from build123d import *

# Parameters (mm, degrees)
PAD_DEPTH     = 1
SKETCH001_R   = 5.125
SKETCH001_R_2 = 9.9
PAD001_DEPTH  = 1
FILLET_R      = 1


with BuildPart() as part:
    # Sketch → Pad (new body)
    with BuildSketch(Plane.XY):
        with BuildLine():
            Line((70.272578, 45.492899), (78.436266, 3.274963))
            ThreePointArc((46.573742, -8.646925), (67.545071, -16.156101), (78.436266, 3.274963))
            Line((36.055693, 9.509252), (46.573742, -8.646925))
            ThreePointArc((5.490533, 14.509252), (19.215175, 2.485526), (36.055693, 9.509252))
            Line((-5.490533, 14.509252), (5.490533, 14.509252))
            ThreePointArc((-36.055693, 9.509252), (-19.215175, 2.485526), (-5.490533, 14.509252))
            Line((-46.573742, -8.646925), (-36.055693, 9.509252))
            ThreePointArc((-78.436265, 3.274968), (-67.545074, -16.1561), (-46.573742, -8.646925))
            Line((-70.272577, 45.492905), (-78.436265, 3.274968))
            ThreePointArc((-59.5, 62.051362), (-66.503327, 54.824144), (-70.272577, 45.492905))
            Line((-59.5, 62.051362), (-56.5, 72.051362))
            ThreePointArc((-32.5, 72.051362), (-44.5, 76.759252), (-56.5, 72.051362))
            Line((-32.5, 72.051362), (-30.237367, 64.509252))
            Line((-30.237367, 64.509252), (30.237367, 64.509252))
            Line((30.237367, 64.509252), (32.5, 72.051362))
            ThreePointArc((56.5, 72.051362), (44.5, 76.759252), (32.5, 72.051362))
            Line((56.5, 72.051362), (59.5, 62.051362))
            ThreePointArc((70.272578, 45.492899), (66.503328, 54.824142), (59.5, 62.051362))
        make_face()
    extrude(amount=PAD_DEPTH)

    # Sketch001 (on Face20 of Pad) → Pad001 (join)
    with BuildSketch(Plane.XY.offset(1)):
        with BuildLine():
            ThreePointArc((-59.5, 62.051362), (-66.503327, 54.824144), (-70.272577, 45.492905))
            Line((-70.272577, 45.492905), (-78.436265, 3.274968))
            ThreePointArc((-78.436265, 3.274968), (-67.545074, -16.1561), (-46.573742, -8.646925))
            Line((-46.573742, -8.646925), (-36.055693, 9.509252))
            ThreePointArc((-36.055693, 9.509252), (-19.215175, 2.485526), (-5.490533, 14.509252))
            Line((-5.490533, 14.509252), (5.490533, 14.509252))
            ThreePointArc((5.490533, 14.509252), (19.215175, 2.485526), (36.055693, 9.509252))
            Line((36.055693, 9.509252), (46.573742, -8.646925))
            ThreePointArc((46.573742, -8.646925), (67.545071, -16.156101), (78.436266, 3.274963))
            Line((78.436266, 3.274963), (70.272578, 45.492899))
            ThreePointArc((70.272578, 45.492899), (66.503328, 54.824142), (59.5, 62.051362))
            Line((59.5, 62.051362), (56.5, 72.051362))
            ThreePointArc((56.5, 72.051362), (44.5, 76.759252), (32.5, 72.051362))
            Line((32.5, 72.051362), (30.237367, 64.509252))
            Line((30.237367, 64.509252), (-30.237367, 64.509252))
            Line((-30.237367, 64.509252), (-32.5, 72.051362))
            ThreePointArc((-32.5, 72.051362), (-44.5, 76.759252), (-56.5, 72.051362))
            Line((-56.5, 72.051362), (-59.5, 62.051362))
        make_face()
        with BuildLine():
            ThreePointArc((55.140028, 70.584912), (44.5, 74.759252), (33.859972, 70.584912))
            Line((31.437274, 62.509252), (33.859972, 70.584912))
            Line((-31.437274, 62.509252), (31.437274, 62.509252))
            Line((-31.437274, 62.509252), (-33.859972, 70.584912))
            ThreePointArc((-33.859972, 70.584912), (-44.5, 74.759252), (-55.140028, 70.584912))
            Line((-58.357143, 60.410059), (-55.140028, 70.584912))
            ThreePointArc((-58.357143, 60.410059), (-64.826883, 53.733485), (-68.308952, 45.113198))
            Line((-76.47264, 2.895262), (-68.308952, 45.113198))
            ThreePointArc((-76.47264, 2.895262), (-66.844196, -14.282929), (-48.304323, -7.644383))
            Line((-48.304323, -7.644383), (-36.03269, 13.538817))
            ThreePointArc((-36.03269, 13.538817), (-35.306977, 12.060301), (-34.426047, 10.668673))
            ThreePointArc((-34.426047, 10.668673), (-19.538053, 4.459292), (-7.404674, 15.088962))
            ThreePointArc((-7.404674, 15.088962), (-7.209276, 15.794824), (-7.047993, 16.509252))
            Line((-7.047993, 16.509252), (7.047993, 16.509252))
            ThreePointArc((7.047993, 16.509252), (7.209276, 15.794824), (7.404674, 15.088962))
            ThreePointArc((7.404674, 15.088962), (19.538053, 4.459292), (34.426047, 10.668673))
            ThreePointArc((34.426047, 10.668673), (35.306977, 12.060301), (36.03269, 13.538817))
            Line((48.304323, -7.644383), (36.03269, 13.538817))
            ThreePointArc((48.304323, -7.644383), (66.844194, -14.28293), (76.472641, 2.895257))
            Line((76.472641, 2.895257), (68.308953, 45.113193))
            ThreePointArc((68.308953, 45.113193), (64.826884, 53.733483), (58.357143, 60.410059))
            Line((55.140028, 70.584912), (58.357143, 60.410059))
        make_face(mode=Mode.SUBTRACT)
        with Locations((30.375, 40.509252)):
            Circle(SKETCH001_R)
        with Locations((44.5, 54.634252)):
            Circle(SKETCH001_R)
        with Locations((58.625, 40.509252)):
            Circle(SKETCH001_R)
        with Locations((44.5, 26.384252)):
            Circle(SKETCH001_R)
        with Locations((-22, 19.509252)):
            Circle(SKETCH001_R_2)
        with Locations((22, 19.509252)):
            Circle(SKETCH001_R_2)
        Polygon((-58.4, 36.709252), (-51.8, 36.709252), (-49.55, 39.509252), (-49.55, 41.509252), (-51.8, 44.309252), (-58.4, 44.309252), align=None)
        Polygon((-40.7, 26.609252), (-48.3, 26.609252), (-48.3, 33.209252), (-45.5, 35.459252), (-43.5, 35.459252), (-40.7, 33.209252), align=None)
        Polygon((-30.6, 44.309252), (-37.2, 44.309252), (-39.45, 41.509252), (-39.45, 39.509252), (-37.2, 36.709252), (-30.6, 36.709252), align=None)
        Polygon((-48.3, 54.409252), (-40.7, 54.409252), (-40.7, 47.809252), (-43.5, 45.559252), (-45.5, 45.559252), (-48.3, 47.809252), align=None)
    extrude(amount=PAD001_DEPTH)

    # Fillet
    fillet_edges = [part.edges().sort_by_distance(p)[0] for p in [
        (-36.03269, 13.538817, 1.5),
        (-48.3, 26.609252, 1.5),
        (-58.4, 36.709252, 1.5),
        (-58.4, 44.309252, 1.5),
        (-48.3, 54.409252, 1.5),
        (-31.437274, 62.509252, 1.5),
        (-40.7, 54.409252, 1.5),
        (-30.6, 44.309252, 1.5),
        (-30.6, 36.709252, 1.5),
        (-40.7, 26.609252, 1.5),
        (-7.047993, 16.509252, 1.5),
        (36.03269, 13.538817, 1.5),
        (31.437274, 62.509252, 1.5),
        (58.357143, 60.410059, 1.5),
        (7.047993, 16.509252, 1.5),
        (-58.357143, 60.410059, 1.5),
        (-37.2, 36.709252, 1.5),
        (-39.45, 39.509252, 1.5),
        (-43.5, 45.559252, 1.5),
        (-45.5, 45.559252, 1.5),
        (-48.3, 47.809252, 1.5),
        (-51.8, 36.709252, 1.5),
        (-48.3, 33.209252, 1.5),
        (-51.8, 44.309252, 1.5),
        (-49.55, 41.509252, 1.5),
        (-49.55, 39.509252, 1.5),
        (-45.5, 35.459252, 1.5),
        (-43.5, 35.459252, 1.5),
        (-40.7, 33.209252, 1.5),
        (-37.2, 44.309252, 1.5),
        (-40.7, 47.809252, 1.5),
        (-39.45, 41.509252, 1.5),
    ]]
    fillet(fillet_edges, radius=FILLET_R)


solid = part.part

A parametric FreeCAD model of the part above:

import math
import FreeCAD as App
import Part
import Sketcher
Q = App.Units.Quantity


def edges_at(feature, points):
    """Names of the edges that pass closest to the given points."""
    edges = feature.Shape.Edges
    near = lambda p: min(range(len(edges)), key=lambda i: edges[i].distToShape(Part.Vertex(*p))[0])
    return sorted({f"Edge{near(p) + 1}" for p in points})

doc = App.newDocument("Part")
body = doc.addObject("PartDesign::Body", "Body")

sketch1 = body.newObject("Sketcher::SketchObject", "Sketch")
sketch1.AttachmentSupport = (doc.getObject("XY_Plane"), [""])
sketch1.MapMode = "FlatFace"
sketch1.addGeometry([
    Part.LineSegment(App.Vector(78.436266, 3.274963, 0), App.Vector(70.272578, 45.492899, 0)),
    Part.ArcOfCircle(Part.Circle(App.Vector(44.500002, 40.509253, 0), App.Vector(0, 0, 1), 26.249998), math.radians(10.944217), math.radians(55.150098)),
    Part.LineSegment(App.Vector(59.5, 62.051362, 0), App.Vector(56.5, 72.051362, 0)),
    Part.ArcOfCircle(Part.Circle(App.Vector(44.5, 59.111832, 0), App.Vector(0, 0, 1), 17.64742), math.radians(47.157446), math.radians(132.842554)),
    Part.LineSegment(App.Vector(32.5, 72.051362, 0), App.Vector(30.237367, 64.509252, 0)),
    Part.LineSegment(App.Vector(30.237367, 64.509252, 0), App.Vector(-30.237367, 64.509252, 0)),
    Part.LineSegment(App.Vector(-30.237367, 64.509252, 0), App.Vector(-32.5, 72.051362, 0)),
    Part.ArcOfCircle(Part.Circle(App.Vector(-44.5, 59.111832, 0), App.Vector(0, 0, 1), 17.64742), math.radians(47.157446), math.radians(132.842554)),
    Part.LineSegment(App.Vector(-56.5, 72.051362, 0), App.Vector(-59.5, 62.051362, 0)),
    Part.ArcOfCircle(Part.Circle(App.Vector(-44.500004, 40.509254, 0), App.Vector(0, 0, 1), 26.249996), math.radians(124.849899), math.radians(169.055772)),
    Part.LineSegment(App.Vector(-70.272577, 45.492905, 0), App.Vector(-78.436265, 3.274968, 0)),
    Part.ArcOfCircle(Part.Circle(App.Vector(-61.5, 0, 0), App.Vector(0, 0, 1), 17.25), math.radians(169.055782), math.radians(329.915874)),
    Part.LineSegment(App.Vector(-46.573742, -8.646925, 0), App.Vector(-36.055693, 9.509252, 0)),
    Part.ArcOfCircle(Part.Circle(App.Vector(-22, 19.509252, 0), App.Vector(0, 0, 1), 17.25), math.radians(-144.569841), math.radians(-16.84928)),
    Part.LineSegment(App.Vector(-5.490533, 14.509252, 0), App.Vector(5.490533, 14.509252, 0)),
    Part.ArcOfCircle(Part.Circle(App.Vector(22, 19.509252, 0), App.Vector(0, 0, 1), 17.25), math.radians(-163.15072), math.radians(-35.430159)),
    Part.LineSegment(App.Vector(36.055693, 9.509252, 0), App.Vector(46.573742, -8.646925, 0)),
    Part.ArcOfCircle(Part.Circle(App.Vector(61.5, 0, 0), App.Vector(0, 0, 1), 17.25), math.radians(-149.915873), math.radians(10.944201)),
], False)
sketch1.addConstraint([
    Sketcher.Constraint("Coincident", 0, 2, 1, 1),
    Sketcher.Constraint("Coincident", 1, 2, 2, 1),
    Sketcher.Constraint("Coincident", 2, 2, 3, 1),
    Sketcher.Constraint("Coincident", 3, 2, 4, 1),
    Sketcher.Constraint("Coincident", 4, 2, 5, 1),
    Sketcher.Constraint("Coincident", 5, 2, 6, 1),
    Sketcher.Constraint("Coincident", 6, 2, 7, 1),
    Sketcher.Constraint("Coincident", 7, 2, 8, 1),
    Sketcher.Constraint("Coincident", 8, 2, 9, 1),
    Sketcher.Constraint("Coincident", 9, 2, 10, 1),
    Sketcher.Constraint("Coincident", 10, 2, 11, 1),
    Sketcher.Constraint("Coincident", 11, 2, 12, 1),
    Sketcher.Constraint("Coincident", 12, 2, 13, 1),
    Sketcher.Constraint("Coincident", 13, 2, 14, 1),
    Sketcher.Constraint("Coincident", 14, 2, 15, 1),
    Sketcher.Constraint("Coincident", 15, 2, 16, 1),
    Sketcher.Constraint("Coincident", 16, 2, 17, 1),
    Sketcher.Constraint("Coincident", 17, 2, 0, 1),
    Sketcher.Constraint("Horizontal", 5),
    Sketcher.Constraint("Horizontal", 14),
    Sketcher.Constraint("PointOnObject", 11, 3, -1),
    Sketcher.Constraint("PointOnObject", 17, 3, -1),
    Sketcher.Constraint("Radius", 11, Q("17.25 mm")),
    Sketcher.Constraint("Radius", 13, Q("17.25 mm")),
    Sketcher.Constraint("Radius", 15, Q("17.25 mm")),
    Sketcher.Constraint("Radius", 17, Q("17.25 mm")),
    Sketcher.Constraint("Distance", 0, Q("42.999999 mm")),
    Sketcher.Constraint("Distance", 10, Q("43 mm")),
    Sketcher.Constraint("DistanceX", 13, 3, -1, 1, Q("22 mm")),
    Sketcher.Constraint("DistanceX", -1, 1, 15, 3, Q("22 mm")),
    Sketcher.Constraint("DistanceX", 7, 3, 3, 3, Q("89 mm")),
    Sketcher.Constraint("DistanceX", 11, 3, 7, 3, Q("17 mm")),
    Sketcher.Constraint("DistanceY", 13, 3, 1, 3, Q("21.000001 mm")),
    Sketcher.Constraint("DistanceY", 15, 3, 1, 3, Q("21.000001 mm")),
    Sketcher.Constraint("DistanceX", 3, 3, 17, 3, Q("17 mm")),
    Sketcher.Constraint("DistanceX", 3, 3, 1, 2, Q("15 mm")),
    Sketcher.Constraint("DistanceX", 2, 2, 1, 2, Q("3 mm")),
    Sketcher.Constraint("DistanceY", 1, 2, 2, 2, Q("10 mm")),
    Sketcher.Constraint("DistanceX", 3, 2, 3, 3, Q("12 mm")),
    Sketcher.Constraint("DistanceY", 1, 3, 4, 2, Q("23.999999 mm")),
    Sketcher.Constraint("DistanceX", 7, 3, 6, 2, Q("12 mm")),
    Sketcher.Constraint("DistanceX", 7, 2, 7, 3, Q("12 mm")),
    Sketcher.Constraint("DistanceX", 8, 2, 7, 2, Q("3 mm")),
    Sketcher.Constraint("DistanceY", 8, 2, 7, 2, Q("10 mm")),
    Sketcher.Constraint("DistanceY", 12, 2, 13, 3, Q("10 mm")),
    Sketcher.Constraint("DistanceY", 13, 2, 13, 3, Q("5 mm")),
    Sketcher.Constraint("DistanceY", 15, 2, 15, 3, Q("10 mm")),
    Sketcher.Constraint("DistanceX", -1, 1, 3, 3, Q("44.5 mm")),
    Sketcher.Constraint("Radius", 3, Q("17.64742 mm")),
    Sketcher.Constraint("Radius", 7, Q("17.64742 mm")),
    Sketcher.Constraint("Radius", 1, Q("26.249998 mm")),
    Sketcher.Constraint("Radius", 9, Q("26.249996 mm")),
    Sketcher.Constraint("DistanceY", -1, 1, 0, 2, Q("45.492899 mm")),
    Sketcher.Constraint("DistanceX", 5, 2, 5, 1, Q("60.474734 mm")),
    Sketcher.Constraint("DistanceY", -1, 1, 3, 3, Q("59.111832 mm")),
    Sketcher.Constraint("DistanceY", -1, 1, 7, 3, Q("59.111832 mm")),
    Sketcher.Constraint("DistanceX", 11, 2, -1, 1, Q("46.573742 mm")),
    Sketcher.Constraint("DistanceY", 1, 3, 3, 3, Q("18.602578 mm")),
    Sketcher.Constraint("DistanceY", 9, 3, 9, 2, Q("4.983651 mm")),
    Sketcher.Constraint("DistanceX", 9, 2, 5, 2, Q("40.03521 mm")),
    Sketcher.Constraint("DistanceX", 10, 2, 9, 2, Q("8.163688 mm")),
    Sketcher.Constraint("DistanceX", 15, 2, 16, 2, Q("10.518049 mm")),
])
pad1 = body.newObject("PartDesign::Pad", "Pad")
pad1.Profile = sketch1
pad1.Length = 1

sketch2 = body.newObject("Sketcher::SketchObject", "Sketch001")
sketch2.AttachmentSupport = (doc.getObject("XY_Plane"), [""])
sketch2.MapMode = "FlatFace"
sketch2.AttachmentOffset = App.Placement(App.Vector(0, 0, 1), App.Rotation())
sketch2.addGeometry([
    Part.ArcOfCircle(Part.Circle(App.Vector(-44.500004, 40.509254, 0), App.Vector(0, 0, 1), 26.249996), math.radians(124.849899), math.radians(169.055772)),
    Part.LineSegment(App.Vector(-70.272577, 45.492905, 0), App.Vector(-78.436265, 3.274968, 0)),
    Part.ArcOfCircle(Part.Circle(App.Vector(-61.5, 0, 0), App.Vector(0, 0, 1), 17.25), math.radians(169.055782), math.radians(329.915874)),
    Part.LineSegment(App.Vector(-46.573742, -8.646925, 0), App.Vector(-36.055693, 9.509252, 0)),
    Part.ArcOfCircle(Part.Circle(App.Vector(-22, 19.509252, 0), App.Vector(0, 0, 1), 17.25), math.radians(-144.569841), math.radians(-16.84928)),
    Part.LineSegment(App.Vector(-5.490533, 14.509252, 0), App.Vector(5.490533, 14.509252, 0)),
    Part.ArcOfCircle(Part.Circle(App.Vector(22, 19.509252, 0), App.Vector(0, 0, 1), 17.25), math.radians(-163.15072), math.radians(-35.430159)),
    Part.LineSegment(App.Vector(36.055693, 9.509252, 0), App.Vector(46.573742, -8.646925, 0)),
    Part.ArcOfCircle(Part.Circle(App.Vector(61.5, 0, 0), App.Vector(0, 0, 1), 17.25), math.radians(-149.915873), math.radians(10.944201)),
    Part.LineSegment(App.Vector(78.436266, 3.274963, 0), App.Vector(70.272578, 45.492899, 0)),
    Part.ArcOfCircle(Part.Circle(App.Vector(44.500002, 40.509253, 0), App.Vector(0, 0, 1), 26.249998), math.radians(10.944217), math.radians(55.150098)),
    Part.LineSegment(App.Vector(59.5, 62.051362, 0), App.Vector(56.5, 72.051362, 0)),
    Part.ArcOfCircle(Part.Circle(App.Vector(44.5, 59.111832, 0), App.Vector(0, 0, 1), 17.64742), math.radians(47.157446), math.radians(132.842554)),
    Part.LineSegment(App.Vector(32.5, 72.051362, 0), App.Vector(30.237367, 64.509252, 0)),
    Part.LineSegment(App.Vector(30.237367, 64.509252, 0), App.Vector(-30.237367, 64.509252, 0)),
    Part.LineSegment(App.Vector(-30.237367, 64.509252, 0), App.Vector(-32.5, 72.051362, 0)),
    Part.ArcOfCircle(Part.Circle(App.Vector(-44.5, 59.111832, 0), App.Vector(0, 0, 1), 17.64742), math.radians(47.157446), math.radians(132.842554)),
    Part.LineSegment(App.Vector(-56.5, 72.051362, 0), App.Vector(-59.5, 62.051362, 0)),
    Part.ArcOfCircle(Part.Circle(App.Vector(44.5, 59.111831, 0), App.Vector(0, 0, 1), 15.647421), math.radians(47.157447), math.radians(132.842553)),
    Part.LineSegment(App.Vector(55.140028, 70.584912, 0), App.Vector(58.357143, 60.410059, 0)),
    Part.ArcOfCircle(Part.Circle(App.Vector(44.499994, 40.509249, 0), App.Vector(0, 0, 1), 24.250007), math.radians(10.944225), math.radians(55.150089)),
    Part.LineSegment(App.Vector(68.308953, 45.113193, 0), App.Vector(76.472641, 2.895257, 0)),
    Part.ArcOfCircle(Part.Circle(App.Vector(61.5, 0, 0), App.Vector(0, 0, 1), 15.25), math.radians(-149.915875), math.radians(10.944203)),
    Part.LineSegment(App.Vector(48.304323, -7.644383, 0), App.Vector(36.03269, 13.538817, 0)),
    Part.ArcOfCircle(Part.Circle(App.Vector(22.000127, 19.509181, 0), App.Vector(0, 0, 1), 15.249854), math.radians(-35.430217), math.radians(-23.048054)),
    Part.ArcOfCircle(Part.Circle(App.Vector(22, 19.509253, 0), App.Vector(0, 0, 1), 15.25), math.radians(-163.150717), math.radians(-35.430159)),
    Part.ArcOfCircle(Part.Circle(App.Vector(22.000474, 19.509374, 0), App.Vector(0, 0, 1), 15.250489), math.radians(-168.654606), math.radians(-163.150797)),
    Part.LineSegment(App.Vector(7.047993, 16.509252, 0), App.Vector(-7.047993, 16.509252, 0)),
    Part.ArcOfCircle(Part.Circle(App.Vector(-22.000474, 19.509374, 0), App.Vector(0, 0, 1), 15.250489), math.radians(-16.849203), math.radians(-11.345394)),
    Part.ArcOfCircle(Part.Circle(App.Vector(-22, 19.509253, 0), App.Vector(0, 0, 1), 15.25), math.radians(-144.569841), math.radians(-16.849283)),
    Part.ArcOfCircle(Part.Circle(App.Vector(-22.000127, 19.509181, 0), App.Vector(0, 0, 1), 15.249854), math.radians(-156.951946), math.radians(-144.569783)),
    Part.LineSegment(App.Vector(-36.03269, 13.538817, 0), App.Vector(-48.304323, -7.644383, 0)),
    Part.ArcOfCircle(Part.Circle(App.Vector(-61.5, 0, 0), App.Vector(0, 0, 1), 15.25), math.radians(169.055779), math.radians(329.915874)),
    Part.LineSegment(App.Vector(-76.47264, 2.895262, 0), App.Vector(-68.308952, 45.113198, 0)),
    Part.ArcOfCircle(Part.Circle(App.Vector(-44.499997, 40.509251, 0), App.Vector(0, 0, 1), 24.250004), math.radians(124.849908), math.radians(169.055767)),
    Part.LineSegment(App.Vector(-58.357143, 60.410059, 0), App.Vector(-55.140028, 70.584912, 0)),
    Part.ArcOfCircle(Part.Circle(App.Vector(-44.5, 59.111831, 0), App.Vector(0, 0, 1), 15.647421), math.radians(47.157447), math.radians(132.842553)),
    Part.LineSegment(App.Vector(-33.859972, 70.584912, 0), App.Vector(-31.437274, 62.509252, 0)),
    Part.LineSegment(App.Vector(-31.437274, 62.509252, 0), App.Vector(31.437274, 62.509252, 0)),
    Part.LineSegment(App.Vector(31.437274, 62.509252, 0), App.Vector(33.859972, 70.584912, 0)),
    Part.Circle(App.Vector(30.375, 40.509252, 0), App.Vector(0, 0, 1), 5.125),
    Part.Circle(App.Vector(44.5, 54.634252, 0), App.Vector(0, 0, 1), 5.125),
    Part.Circle(App.Vector(58.625, 40.509252, 0), App.Vector(0, 0, 1), 5.125),
    Part.Circle(App.Vector(44.5, 26.384252, 0), App.Vector(0, 0, 1), 5.125),
    Part.Circle(App.Vector(-22, 19.509252, 0), App.Vector(0, 0, 1), 9.9),
    Part.Circle(App.Vector(22, 19.509252, 0), App.Vector(0, 0, 1), 9.9),
    Part.LineSegment(App.Vector(-58.4, 36.709252, 0), App.Vector(-51.8, 36.709252, 0)),
    Part.LineSegment(App.Vector(-51.8, 36.709252, 0), App.Vector(-49.55, 39.509252, 0)),
    Part.LineSegment(App.Vector(-49.55, 39.509252, 0), App.Vector(-49.55, 41.509252, 0)),
    Part.LineSegment(App.Vector(-49.55, 41.509252, 0), App.Vector(-51.8, 44.309252, 0)),
    Part.LineSegment(App.Vector(-51.8, 44.309252, 0), App.Vector(-58.4, 44.309252, 0)),
    Part.LineSegment(App.Vector(-58.4, 44.309252, 0), App.Vector(-58.4, 36.709252, 0)),
    Part.LineSegment(App.Vector(-48.3, 26.609252, 0), App.Vector(-40.7, 26.609252, 0)),
    Part.LineSegment(App.Vector(-40.7, 26.609252, 0), App.Vector(-40.7, 33.209252, 0)),
    Part.LineSegment(App.Vector(-40.7, 33.209252, 0), App.Vector(-43.5, 35.459252, 0)),
    Part.LineSegment(App.Vector(-43.5, 35.459252, 0), App.Vector(-45.5, 35.459252, 0)),
    Part.LineSegment(App.Vector(-45.5, 35.459252, 0), App.Vector(-48.3, 33.209252, 0)),
    Part.LineSegment(App.Vector(-48.3, 33.209252, 0), App.Vector(-48.3, 26.609252, 0)),
    Part.LineSegment(App.Vector(-30.6, 44.309252, 0), App.Vector(-37.2, 44.309252, 0)),
    Part.LineSegment(App.Vector(-37.2, 44.309252, 0), App.Vector(-39.45, 41.509252, 0)),
    Part.LineSegment(App.Vector(-39.45, 41.509252, 0), App.Vector(-39.45, 39.509252, 0)),
    Part.LineSegment(App.Vector(-39.45, 39.509252, 0), App.Vector(-37.2, 36.709252, 0)),
    Part.LineSegment(App.Vector(-37.2, 36.709252, 0), App.Vector(-30.6, 36.709252, 0)),
    Part.LineSegment(App.Vector(-30.6, 36.709252, 0), App.Vector(-30.6, 44.309252, 0)),
    Part.LineSegment(App.Vector(-40.7, 54.409252, 0), App.Vector(-48.3, 54.409252, 0)),
    Part.LineSegment(App.Vector(-48.3, 54.409252, 0), App.Vector(-48.3, 47.809252, 0)),
    Part.LineSegment(App.Vector(-48.3, 47.809252, 0), App.Vector(-45.5, 45.559252, 0)),
    Part.LineSegment(App.Vector(-45.5, 45.559252, 0), App.Vector(-43.5, 45.559252, 0)),
    Part.LineSegment(App.Vector(-43.5, 45.559252, 0), App.Vector(-40.7, 47.809252, 0)),
    Part.LineSegment(App.Vector(-40.7, 47.809252, 0), App.Vector(-40.7, 54.409252, 0)),
], False)
sketch2.addConstraint([
    Sketcher.Constraint("Coincident", 0, 2, 1, 1),
    Sketcher.Constraint("Coincident", 1, 2, 2, 1),
    Sketcher.Constraint("Coincident", 2, 2, 3, 1),
    Sketcher.Constraint("Coincident", 3, 2, 4, 1),
    Sketcher.Constraint("Coincident", 4, 2, 5, 1),
    Sketcher.Constraint("Coincident", 5, 2, 6, 1),
    Sketcher.Constraint("Coincident", 6, 2, 7, 1),
    Sketcher.Constraint("Coincident", 7, 2, 8, 1),
    Sketcher.Constraint("Coincident", 8, 2, 9, 1),
    Sketcher.Constraint("Coincident", 9, 2, 10, 1),
    Sketcher.Constraint("Coincident", 10, 2, 11, 1),
    Sketcher.Constraint("Coincident", 11, 2, 12, 1),
    Sketcher.Constraint("Coincident", 12, 2, 13, 1),
    Sketcher.Constraint("Coincident", 13, 2, 14, 1),
    Sketcher.Constraint("Coincident", 14, 2, 15, 1),
    Sketcher.Constraint("Coincident", 15, 2, 16, 1),
    Sketcher.Constraint("Coincident", 16, 2, 17, 1),
    Sketcher.Constraint("Coincident", 17, 2, 0, 1),
    Sketcher.Constraint("Coincident", 18, 1, 19, 1),
    Sketcher.Constraint("Coincident", 19, 2, 20, 2),
    Sketcher.Constraint("Coincident", 20, 1, 21, 1),
    Sketcher.Constraint("Coincident", 21, 2, 22, 2),
    Sketcher.Constraint("Coincident", 22, 1, 23, 1),
    Sketcher.Constraint("Coincident", 23, 2, 24, 2),
    Sketcher.Constraint("Coincident", 24, 1, 25, 2),
    Sketcher.Constraint("Coincident", 25, 1, 26, 2),
    Sketcher.Constraint("Coincident", 26, 1, 27, 1),
    Sketcher.Constraint("Coincident", 27, 2, 28, 2),
    Sketcher.Constraint("Coincident", 28, 1, 29, 2),
    Sketcher.Constraint("Coincident", 29, 1, 30, 2),
    Sketcher.Constraint("Coincident", 30, 1, 31, 1),
    Sketcher.Constraint("Coincident", 31, 2, 32, 2),
    Sketcher.Constraint("Coincident", 32, 1, 33, 1),
    Sketcher.Constraint("Coincident", 33, 2, 34, 2),
    Sketcher.Constraint("Coincident", 34, 1, 35, 1),
    Sketcher.Constraint("Coincident", 35, 2, 36, 2),
    Sketcher.Constraint("Coincident", 36, 1, 37, 1),
    Sketcher.Constraint("Coincident", 37, 2, 38, 1),
    Sketcher.Constraint("Coincident", 38, 2, 39, 1),
    Sketcher.Constraint("Coincident", 39, 2, 18, 2),
    Sketcher.Constraint("Coincident", 46, 2, 47, 1),
    Sketcher.Constraint("Coincident", 47, 2, 48, 1),
    Sketcher.Constraint("Coincident", 48, 2, 49, 1),
    Sketcher.Constraint("Coincident", 49, 2, 50, 1),
    Sketcher.Constraint("Coincident", 50, 2, 51, 1),
    Sketcher.Constraint("Coincident", 51, 2, 46, 1),
    Sketcher.Constraint("Coincident", 52, 2, 53, 1),
    Sketcher.Constraint("Coincident", 53, 2, 54, 1),
    Sketcher.Constraint("Coincident", 54, 2, 55, 1),
    Sketcher.Constraint("Coincident", 55, 2, 56, 1),
    Sketcher.Constraint("Coincident", 56, 2, 57, 1),
    Sketcher.Constraint("Coincident", 57, 2, 52, 1),
    Sketcher.Constraint("Coincident", 58, 2, 59, 1),
    Sketcher.Constraint("Coincident", 59, 2, 60, 1),
    Sketcher.Constraint("Coincident", 60, 2, 61, 1),
    Sketcher.Constraint("Coincident", 61, 2, 62, 1),
    Sketcher.Constraint("Coincident", 62, 2, 63, 1),
    Sketcher.Constraint("Coincident", 63, 2, 58, 1),
    Sketcher.Constraint("Coincident", 64, 2, 65, 1),
    Sketcher.Constraint("Coincident", 65, 2, 66, 1),
    Sketcher.Constraint("Coincident", 66, 2, 67, 1),
    Sketcher.Constraint("Coincident", 67, 2, 68, 1),
    Sketcher.Constraint("Coincident", 68, 2, 69, 1),
    Sketcher.Constraint("Coincident", 69, 2, 64, 1),
    Sketcher.Constraint("Horizontal", 5),
    Sketcher.Constraint("Horizontal", 14),
    Sketcher.Constraint("Horizontal", 27),
    Sketcher.Constraint("Horizontal", 38),
    Sketcher.Constraint("Horizontal", 46),
    Sketcher.Constraint("Vertical", 48),
    Sketcher.Constraint("Horizontal", 50),
    Sketcher.Constraint("Vertical", 51),
    Sketcher.Constraint("Horizontal", 52),
    Sketcher.Constraint("Vertical", 53),
    Sketcher.Constraint("Horizontal", 55),
    Sketcher.Constraint("Vertical", 57),
    Sketcher.Constraint("Horizontal", 58),
    Sketcher.Constraint("Vertical", 60),
    Sketcher.Constraint("Horizontal", 62),
    Sketcher.Constraint("Vertical", 63),
    Sketcher.Constraint("Horizontal", 64),
    Sketcher.Constraint("Vertical", 65),
    Sketcher.Constraint("Horizontal", 67),
    Sketcher.Constraint("Vertical", 69),
    Sketcher.Constraint("Coincident", 18, 3, 12, 3),
    Sketcher.Constraint("Coincident", 20, 3, 10, 3),
    Sketcher.Constraint("Coincident", 22, 3, 8, 3),
    Sketcher.Constraint("Coincident", 25, 3, 6, 3),
    Sketcher.Constraint("Coincident", 29, 3, 4, 3),
    Sketcher.Constraint("Coincident", 32, 3, 2, 3),
    Sketcher.Constraint("Coincident", 34, 3, 0, 3),
    Sketcher.Constraint("Coincident", 36, 3, 16, 3),
    Sketcher.Constraint("Coincident", 44, 3, 4, 3),
    Sketcher.Constraint("Coincident", 45, 3, 6, 3),
    Sketcher.Constraint("PointOnObject", 2, 3, -1),
    Sketcher.Constraint("PointOnObject", 8, 3, -1),
    Sketcher.Constraint("Diameter", 44, Q("19.8 mm")),
    Sketcher.Constraint("Diameter", 45, Q("19.8 mm")),
    Sketcher.Constraint("Diameter", 40, Q("10.25 mm")),
    Sketcher.Constraint("Diameter", 41, Q("10.25 mm")),
    Sketcher.Constraint("Diameter", 42, Q("10.25 mm")),
    Sketcher.Constraint("Diameter", 43, Q("10.25 mm")),
    Sketcher.Constraint("DistanceX", 55, 2, 55, 1, Q("2 mm")),
    Sketcher.Constraint("DistanceX", 67, 1, 67, 2, Q("2 mm")),
    Sketcher.Constraint("DistanceY", 48, 1, 48, 2, Q("2 mm")),
    Sketcher.Constraint("DistanceY", 60, 2, 60, 1, Q("2 mm")),
    Sketcher.Constraint("Radius", 2, Q("17.25 mm")),
    Sketcher.Constraint("Radius", 4, Q("17.25 mm")),
    Sketcher.Constraint("Radius", 6, Q("17.25 mm")),
    Sketcher.Constraint("Radius", 8, Q("17.25 mm")),
    Sketcher.Constraint("Radius", 22, Q("15.25 mm")),
    Sketcher.Constraint("Radius", 25, Q("15.25 mm")),
    Sketcher.Constraint("Radius", 29, Q("15.25 mm")),
    Sketcher.Constraint("Radius", 32, Q("15.25 mm")),
    Sketcher.Constraint("Distance", 1, Q("43 mm")),
    Sketcher.Constraint("Distance", 9, Q("42.999999 mm")),
    Sketcher.Constraint("Distance", 21, Q("42.999999 mm")),
    Sketcher.Constraint("Distance", 33, Q("42.999999 mm")),
    Sketcher.Constraint("DistanceX", 46, 1, 46, 2, Q("6.6 mm")),
    Sketcher.Constraint("DistanceX", 50, 2, 50, 1, Q("6.6 mm")),
    Sketcher.Constraint("DistanceX", 52, 1, 52, 2, Q("7.6 mm")),
    Sketcher.Constraint("DistanceX", 58, 2, 58, 1, Q("6.6 mm")),
    Sketcher.Constraint("DistanceX", 62, 1, 62, 2, Q("6.6 mm")),
    Sketcher.Constraint("DistanceX", 64, 2, 64, 1, Q("7.6 mm")),
    Sketcher.Constraint("DistanceY", 51, 2, 51, 1, Q("7.6 mm")),
    Sketcher.Constraint("DistanceY", 53, 1, 53, 2, Q("6.6 mm")),
    Sketcher.Constraint("DistanceY", 57, 2, 57, 1, Q("6.6 mm")),
    Sketcher.Constraint("DistanceY", 63, 1, 63, 2, Q("7.6 mm")),
    Sketcher.Constraint("DistanceY", 65, 2, 65, 1, Q("6.6 mm")),
    Sketcher.Constraint("DistanceY", 69, 1, 69, 2, Q("6.6 mm")),
    Sketcher.Constraint("DistanceX", 4, 3, -1, 1, Q("22 mm")),
    Sketcher.Constraint("DistanceX", -1, 1, 6, 3, Q("22 mm")),
    Sketcher.Constraint("DistanceX", 2, 3, -1, 1, Q("61.5 mm")),
    Sketcher.Constraint("DistanceX", -1, 1, 8, 3, Q("61.5 mm")),
    Sketcher.Constraint("DistanceX", -1, 1, 12, 3, Q("44.5 mm")),
    Sketcher.Constraint("DistanceX", 16, 3, -1, 1, Q("44.5 mm")),
    Sketcher.Constraint("DistanceX", -1, 1, 41, 3, Q("44.5 mm")),
    Sketcher.Constraint("DistanceX", -1, 1, 43, 3, Q("44.5 mm")),
    Sketcher.Constraint("DistanceX", -1, 1, 10, 2, Q("59.5 mm")),
    Sketcher.Constraint("DistanceX", -1, 1, 11, 2, Q("56.5 mm")),
    Sketcher.Constraint("DistanceX", -1, 1, 12, 2, Q("32.5 mm")),
    Sketcher.Constraint("DistanceX", 15, 2, -1, 1, Q("32.5 mm")),
    Sketcher.Constraint("DistanceX", 16, 2, -1, 1, Q("56.5 mm")),
    Sketcher.Constraint("DistanceX", 17, 2, -1, 1, Q("59.5 mm")),
    Sketcher.Constraint("DistanceX", 46, 2, -1, 1, Q("51.8 mm")),
    Sketcher.Constraint("DistanceX", 52, 2, -1, 1, Q("40.7 mm")),
    Sketcher.Constraint("DistanceX", 54, 2, -1, 1, Q("43.5 mm")),
    Sketcher.Constraint("DistanceX", 58, 2, -1, 1, Q("37.2 mm")),
    Sketcher.Constraint("DistanceX", 64, 2, -1, 1, Q("48.3 mm")),
    Sketcher.Constraint("DistanceX", 66, 2, -1, 1, Q("45.5 mm")),
    Sketcher.Constraint("DistanceX", 47, 2, -1, 1, Q("49.55 mm")),
    Sketcher.Constraint("DistanceX", 59, 2, -1, 1, Q("39.45 mm")),
    Sketcher.Constraint("Radius", 12, Q("17.64742 mm")),
    Sketcher.Constraint("Radius", 16, Q("17.64742 mm")),
    Sketcher.Constraint("Radius", 18, Q("15.647421 mm")),
    Sketcher.Constraint("Radius", 26, Q("15.250489 mm")),
    Sketcher.Constraint("Radius", 28, Q("15.250489 mm")),
    Sketcher.Constraint("Radius", 36, Q("15.647421 mm")),
    Sketcher.Constraint("DistanceX", -1, 1, 40, 3, Q("30.375 mm")),
    Sketcher.Constraint("DistanceX", -1, 1, 42, 3, Q("58.625 mm")),
    Sketcher.Constraint("Radius", 0, Q("26.249996 mm")),
    Sketcher.Constraint("Radius", 10, Q("26.249998 mm")),
    Sketcher.Constraint("Radius", 20, Q("24.250007 mm")),
    Sketcher.Constraint("Radius", 24, Q("15.249854 mm")),
    Sketcher.Constraint("Radius", 30, Q("15.249854 mm")),
    Sketcher.Constraint("Radius", 34, Q("24.250004 mm")),
    Sketcher.Constraint("DistanceY", -1, 1, 9, 2, Q("45.492899 mm")),
    Sketcher.Constraint("Distance", 19, Q("10.671338 mm")),
    Sketcher.Constraint("Distance", 35, Q("10.671338 mm")),
    Sketcher.Constraint("DistanceX", 5, 1, 5, 2, Q("10.981066 mm")),
    Sketcher.Constraint("DistanceX", 14, 2, 14, 1, Q("60.474734 mm")),
    Sketcher.Constraint("DistanceX", 27, 2, 27, 1, Q("14.095986 mm")),
    Sketcher.Constraint("DistanceX", 38, 1, 38, 2, Q("62.874548 mm")),
    Sketcher.Constraint("DistanceY", -1, 1, 12, 3, Q("59.111832 mm")),
    Sketcher.Constraint("DistanceY", -1, 1, 16, 3, Q("59.111832 mm")),
    Sketcher.Constraint("DistanceY", -1, 1, 20, 3, Q("40.509249 mm")),
    Sketcher.Constraint("DistanceY", -1, 1, 24, 3, Q("19.509181 mm")),
    Sketcher.Constraint("DistanceY", -1, 1, 30, 3, Q("19.509181 mm")),
    Sketcher.Constraint("DistanceY", -1, 1, 34, 3, Q("40.509251 mm")),
    Sketcher.Constraint("DistanceY", -1, 1, 40, 3, Q("40.509252 mm")),
    Sketcher.Constraint("DistanceY", -1, 1, 41, 3, Q("54.634252 mm")),
    Sketcher.Constraint("DistanceY", -1, 1, 42, 3, Q("40.509252 mm")),
    Sketcher.Constraint("DistanceY", -1, 1, 43, 3, Q("26.384252 mm")),
    Sketcher.Constraint("DistanceY", -1, 1, 44, 3, Q("19.509252 mm")),
    Sketcher.Constraint("DistanceY", -1, 1, 45, 3, Q("19.509252 mm")),
    Sketcher.Constraint("DistanceX", 2, 2, -1, 1, Q("46.573742 mm")),
    Sketcher.Constraint("DistanceY", -1, 1, 10, 2, Q("62.051362 mm")),
    Sketcher.Constraint("DistanceY", -1, 1, 17, 2, Q("62.051362 mm")),
    Sketcher.Constraint("DistanceX", -1, 1, 18, 1, Q("55.140028 mm")),
    Sketcher.Constraint("DistanceX", -1, 1, 21, 2, Q("76.472641 mm")),
    Sketcher.Constraint("DistanceX", -1, 1, 23, 2, Q("36.03269 mm")),
    Sketcher.Constraint("DistanceY", -1, 1, 26, 1, Q("16.509252 mm")),
    Sketcher.Constraint("DistanceY", -1, 1, 28, 1, Q("15.088962 mm")),
    Sketcher.Constraint("DistanceX", 30, 1, -1, 1, Q("36.03269 mm")),
    Sketcher.Constraint("DistanceX", 32, 1, -1, 1, Q("76.47264 mm")),
    Sketcher.Constraint("DistanceY", -1, 1, 34, 1, Q("60.410059 mm")),
    Sketcher.Constraint("DistanceX", 36, 1, -1, 1, Q("33.859972 mm")),
    Sketcher.Constraint("DistanceY", -1, 1, 37, 2, Q("62.509252 mm")),
    Sketcher.Constraint("DistanceY", -1, 1, 47, 2, Q("39.509252 mm")),
    Sketcher.Constraint("DistanceY", -1, 1, 59, 2, Q("41.509252 mm")),
    Sketcher.Constraint("Distance", 3, Q("20.982758 mm")),
    Sketcher.Constraint("Distance", 7, Q("20.982758 mm")),
    Sketcher.Constraint("Distance", 13, Q("7.874194 mm")),
    Sketcher.Constraint("Distance", 15, Q("7.874194 mm")),
    Sketcher.Constraint("Distance", 23, Q("24.481032 mm")),
    Sketcher.Constraint("Distance", 31, Q("24.481032 mm")),
    Sketcher.Constraint("Distance", 37, Q("8.431237 mm")),
    Sketcher.Constraint("Distance", 39, Q("8.431237 mm")),
    Sketcher.Constraint("Distance", 47, Q("3.592005 mm")),
    Sketcher.Constraint("Distance", 54, Q("3.592005 mm")),
    Sketcher.Constraint("Distance", 59, Q("3.592005 mm")),
    Sketcher.Constraint("Distance", 66, Q("3.592005 mm")),
    Sketcher.Constraint("DistanceX", -1, 1, 26, 3, Q("22.000474 mm")),
    Sketcher.Constraint("DistanceX", 0, 2, -1, 1, Q("70.272577 mm")),
    Sketcher.Constraint("DistanceX", -1, 1, 6, 2, Q("36.055693 mm")),
    Sketcher.Constraint("DistanceX", -1, 1, 24, 1, Q("34.426047 mm")),
    Sketcher.Constraint("DistanceX", -1, 1, 25, 1, Q("7.404674 mm")),
    Sketcher.Constraint("DistanceX", 29, 1, -1, 1, Q("34.426047 mm")),
    Sketcher.Constraint("DistanceY", -1, 1, 52, 2, Q("26.609252 mm")),
    Sketcher.Constraint("DistanceY", -1, 1, 64, 2, Q("54.409252 mm")),
])
pad2 = body.newObject("PartDesign::Pad", "Pad001")
pad2.Profile = sketch2
pad2.Length = 1
doc.recompute()

fillet = body.newObject("PartDesign::Fillet", "Fillet")
fillet.Base = (pad2, edges_at(pad2, [
    (-36.033, 13.539, 1.5),
    (-48.3, 26.609, 1.5),
    (-58.4, 36.709, 1.5),
    (-58.4, 44.309, 1.5),
    (-48.3, 54.409, 1.5),
    (-31.437, 62.509, 1.5),
    (-40.7, 54.409, 1.5),
    (-30.6, 44.309, 1.5),
    (-30.6, 36.709, 1.5),
    (-40.7, 26.609, 1.5),
    (-7.048, 16.509, 1.5),
    (36.033, 13.539, 1.5),
    (31.437, 62.509, 1.5),
    (58.357, 60.41, 1.5),
    (7.048, 16.509, 1.5),
    (-58.357, 60.41, 1.5),
    (-37.2, 36.709, 1.5),
    (-39.45, 39.509, 1.5),
    (-43.5, 45.559, 1.5),
    (-45.5, 45.559, 1.5),
    (-48.3, 47.809, 1.5),
    (-51.8, 36.709, 1.5),
    (-48.3, 33.209, 1.5),
    (-51.8, 44.309, 1.5),
    (-49.55, 41.509, 1.5),
    (-49.55, 39.509, 1.5),
    (-45.5, 35.459, 1.5),
    (-43.5, 35.459, 1.5),
    (-40.7, 33.209, 1.5),
    (-37.2, 44.309, 1.5),
    (-40.7, 47.809, 1.5),
    (-39.45, 41.509, 1.5),
]))
fillet.Radius = 1

doc.recompute()
